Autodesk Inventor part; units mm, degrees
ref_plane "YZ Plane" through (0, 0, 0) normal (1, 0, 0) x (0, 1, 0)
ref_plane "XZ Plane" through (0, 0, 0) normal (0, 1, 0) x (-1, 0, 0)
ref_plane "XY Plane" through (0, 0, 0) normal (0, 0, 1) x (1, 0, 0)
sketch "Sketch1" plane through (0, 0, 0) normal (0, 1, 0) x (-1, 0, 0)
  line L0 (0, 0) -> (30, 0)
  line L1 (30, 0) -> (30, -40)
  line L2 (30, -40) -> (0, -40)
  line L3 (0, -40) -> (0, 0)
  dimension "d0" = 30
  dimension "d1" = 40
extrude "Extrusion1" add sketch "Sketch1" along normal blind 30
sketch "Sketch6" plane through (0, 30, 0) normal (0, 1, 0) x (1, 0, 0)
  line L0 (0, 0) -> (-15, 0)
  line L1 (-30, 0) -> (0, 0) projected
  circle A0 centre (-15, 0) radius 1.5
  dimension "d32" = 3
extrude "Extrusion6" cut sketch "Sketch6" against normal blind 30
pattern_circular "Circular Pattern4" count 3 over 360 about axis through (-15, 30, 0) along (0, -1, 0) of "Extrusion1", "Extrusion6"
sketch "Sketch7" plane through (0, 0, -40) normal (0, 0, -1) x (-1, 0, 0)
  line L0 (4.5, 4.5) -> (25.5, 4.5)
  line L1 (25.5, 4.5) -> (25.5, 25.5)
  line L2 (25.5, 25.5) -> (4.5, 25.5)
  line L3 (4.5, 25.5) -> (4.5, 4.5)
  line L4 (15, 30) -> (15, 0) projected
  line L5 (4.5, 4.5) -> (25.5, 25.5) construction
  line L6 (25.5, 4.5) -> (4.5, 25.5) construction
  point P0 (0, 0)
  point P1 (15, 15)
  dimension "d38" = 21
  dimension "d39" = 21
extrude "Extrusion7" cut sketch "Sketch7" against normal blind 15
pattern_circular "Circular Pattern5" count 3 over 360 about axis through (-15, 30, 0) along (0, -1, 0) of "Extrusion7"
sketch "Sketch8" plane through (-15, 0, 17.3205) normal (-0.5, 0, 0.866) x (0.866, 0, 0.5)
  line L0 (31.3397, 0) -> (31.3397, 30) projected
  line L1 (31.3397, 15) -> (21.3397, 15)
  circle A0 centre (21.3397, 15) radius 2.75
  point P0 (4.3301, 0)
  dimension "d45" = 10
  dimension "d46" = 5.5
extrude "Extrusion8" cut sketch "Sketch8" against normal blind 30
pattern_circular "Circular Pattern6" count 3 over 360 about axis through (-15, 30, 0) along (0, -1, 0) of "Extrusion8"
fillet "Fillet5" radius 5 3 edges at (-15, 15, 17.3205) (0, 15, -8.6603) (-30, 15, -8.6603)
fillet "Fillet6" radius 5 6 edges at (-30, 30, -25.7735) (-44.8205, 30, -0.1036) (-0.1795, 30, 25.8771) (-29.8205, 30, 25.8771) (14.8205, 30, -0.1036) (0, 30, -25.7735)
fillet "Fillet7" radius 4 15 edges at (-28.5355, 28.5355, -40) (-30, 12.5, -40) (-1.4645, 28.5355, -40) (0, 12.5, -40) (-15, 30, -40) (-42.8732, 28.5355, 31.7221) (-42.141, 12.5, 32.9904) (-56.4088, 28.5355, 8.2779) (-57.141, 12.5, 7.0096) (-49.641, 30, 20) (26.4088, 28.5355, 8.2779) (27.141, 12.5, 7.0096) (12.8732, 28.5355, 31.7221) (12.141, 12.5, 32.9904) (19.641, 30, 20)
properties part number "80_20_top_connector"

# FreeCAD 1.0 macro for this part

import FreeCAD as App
import Part
import Sketcher

V = App.Vector
Q = App.Units.Quantity


def edges_at(feature, points):
    """Names of the edges that pass closest to the given points."""
    edges = feature.Shape.Edges
    near = lambda p: min(range(len(edges)), key=lambda i: edges[i].distToShape(Part.Vertex(*p))[0])
    return sorted({f"Edge{near(p) + 1}" for p in points})


def add_polygon(sketch, points):
    """Adds a closed chain of lines whose ends are joined by coincident constraints."""
    first, n = sketch.GeometryCount, len(points)
    for a, b in zip(points, points[1:] + points[:1]):
        sketch.addGeometry(Part.LineSegment(App.Vector(*a, 0), App.Vector(*b, 0)), False)
    for i in range(n):
        sketch.addConstraint(Sketcher.Constraint("Coincident", first + i, 2, first + (i + 1) % n, 1))

doc = App.newDocument("Part")
body = doc.addObject("PartDesign::Body", "Body")

sketch1 = body.newObject("Sketcher::SketchObject", "Sketch")
sketch1.AttachmentSupport = (doc.getObject("XZ_Plane"), [""])
sketch1.MapMode = "FlatFace"
add_polygon(sketch1, [(-30, 0), (0, 0), (0, -40), (-30, -40)])
sketch1.addConstraint([
    Sketcher.Constraint("Horizontal", 0),
    Sketcher.Constraint("Vertical", 1),
    Sketcher.Constraint("Horizontal", 2),
    Sketcher.Constraint("Vertical", 3),
    Sketcher.Constraint("Coincident", 0, 2, -1, 1),
    Sketcher.Constraint("DistanceX", 0, 1, 0, 2, Q("30 mm")),
    Sketcher.Constraint("DistanceY", 1, 2, 1, 1, Q("40 mm")),
])
pad1 = body.newObject("PartDesign::Pad", "Pad")
pad1.Profile = sketch1
pad1.Length = 30
pad1.Reversed = True

sketch2 = body.newObject("Sketcher::SketchObject", "Sketch001")
sketch2.AttachmentSupport = (doc.getObject("XZ_Plane"), [""])
sketch2.MapMode = "FlatFace"
sketch2.AttachmentOffset = App.Placement(V(0, 0, -30), App.Rotation())
sketch2.addGeometry(Part.Circle(V(-15, 0, 0), V(0, 0, 1), 1.5), False)
sketch2.addConstraint([
    Sketcher.Constraint("PointOnObject", 0, 3, -1),
    Sketcher.Constraint("Diameter", 0, Q("3 mm")),
    Sketcher.Constraint("DistanceX", 0, 3, -1, 1, Q("15 mm")),
])
pocket1 = body.newObject("PartDesign::Pocket", "Pocket")
pocket1.Profile = sketch2
pocket1.Length = 30
pocket1.Reversed = True
doc.recompute()

datumline = body.newObject("PartDesign::Line", "DatumLine")
datumline.Placement = App.Placement(V(-15, 0, 0), App.Rotation(V(0, 0, 1), V(0, 1, 0)))
polarpattern = body.newObject("PartDesign::PolarPattern", "PolarPattern")
polarpattern.Originals = [pad1, pocket1]
polarpattern.Axis = (datumline, [""])
polarpattern.Angle = 360
polarpattern.Occurrences = 3
body.Tip = polarpattern

sketch3 = body.newObject("Sketcher::SketchObject", "Sketch002")
sketch3.AttachmentSupport = (doc.getObject("XY_Plane"), [""])
sketch3.MapMode = "FlatFace"
sketch3.AttachmentOffset = App.Placement(V(0, 0, -40), App.Rotation())
add_polygon(sketch3, [(-4, 26), (-4, 4), (-26, 4), (-26, 26)])
sketch3.addConstraint([
    Sketcher.Constraint("Vertical", 0),
    Sketcher.Constraint("Horizontal", 1),
    Sketcher.Constraint("Vertical", 2),
    Sketcher.Constraint("Horizontal", 3),
    Sketcher.Constraint("Equal", 3, 0),
    Sketcher.Constraint("DistanceX", 1, 2, 1, 1, Q("21 mm")),
    Sketcher.Constraint("DistanceX", 0, 2, -1, 1, Q("4.5 mm")),
    Sketcher.Constraint("DistanceY", -1, 1, 0, 2, Q("4.5 mm")),
])
pocket2 = body.newObject("PartDesign::Pocket", "Pocket001")
pocket2.Profile = sketch3
pocket2.Length = 15
pocket2.Reversed = True
doc.recompute()

datumline2 = body.newObject("PartDesign::Line", "DatumLine001")
datumline2.Placement = App.Placement(V(-15, 0, 0), App.Rotation(V(0, 0, 1), V(0, 1, 0)))
polarpattern2 = body.newObject("PartDesign::PolarPattern", "PolarPattern001")
polarpattern2.Originals = [pocket2]
polarpattern2.Axis = (datumline2, [""])
polarpattern2.Angle = 360
polarpattern2.Occurrences = 3
body.Tip = polarpattern2

sketch4 = body.newObject("Sketcher::SketchObject", "Sketch003")
sketch4.Placement = App.Placement(V(-15, 0, 17.3205), App.Rotation(V(0.866025404, 0, 0.5), V(0, 1, 0), V(-0.5, 0, 0.866025404), "ZXY"))
sketch4.addGeometry(Part.Circle(V(21.3, 15, 0), V(0, 0, 1), 2.8), False)
sketch4.addConstraint([
    Sketcher.Constraint("Diameter", 0, Q("5.5 mm")),
    Sketcher.Constraint("DistanceY", -1, 1, 0, 3, Q("15 mm")),
    Sketcher.Constraint("DistanceX", -1, 1, 0, 3, Q("21.3397 mm")),
])
pocket3 = body.newObject("PartDesign::Pocket", "Pocket002")
pocket3.Profile = sketch4
pocket3.Length = 30
doc.recompute()

datumline3 = body.newObject("PartDesign::Line", "DatumLine002")
datumline3.Placement = App.Placement(V(-15, 0, 0), App.Rotation(V(0, 0, 1), V(0, 1, 0)))
polarpattern3 = body.newObject("PartDesign::PolarPattern", "PolarPattern002")
polarpattern3.Originals = [pocket3]
polarpattern3.Axis = (datumline3, [""])
polarpattern3.Angle = 360
polarpattern3.Occurrences = 3
body.Tip = polarpattern3
doc.recompute()

fillet = body.newObject("PartDesign::Fillet", "Fillet")
fillet.Base = (polarpattern3, edges_at(polarpattern3, [(-15, 15, 17.32), (0, 15, -8.66), (-30, 15, -8.66)]))
fillet.Radius = 5
doc.recompute()

fillet2 = body.newObject("PartDesign::Fillet", "Fillet001")
fillet2.Base = (fillet, edges_at(fillet, [
    (-30, 30, -25.773),
    (-44.821, 30, -0.104),
    (-0.179, 30, 25.877),
    (-29.82, 30, 25.877),
    (14.82, 30, -0.104),
    (0, 30, -25.773),
]))
fillet2.Radius = 5
doc.recompute()

fillet3 = body.newObject("PartDesign::Fillet", "Fillet002")
fillet3.Base = (fillet2, edges_at(fillet2, [
    (-28.535, 28.535, -40),
    (-30, 12.5, -40),
    (-1.464, 28.535, -40),
    (0, 12.5, -40),
    (-15, 30, -40),
    (-42.873, 28.535, 31.722),
    (-42.141, 12.5, 32.99),
    (-56.409, 28.535, 8.278),
    (-57.141, 12.5, 7.01),
    (-49.641, 30, 20),
    (26.409, 28.535, 8.278),
    (27.141, 12.5, 7.01),
    (12.873, 28.535, 31.722),
    (12.141, 12.5, 32.99),
    (19.641, 30, 20),
]))
fillet3.Radius = 4

doc.recompute()
